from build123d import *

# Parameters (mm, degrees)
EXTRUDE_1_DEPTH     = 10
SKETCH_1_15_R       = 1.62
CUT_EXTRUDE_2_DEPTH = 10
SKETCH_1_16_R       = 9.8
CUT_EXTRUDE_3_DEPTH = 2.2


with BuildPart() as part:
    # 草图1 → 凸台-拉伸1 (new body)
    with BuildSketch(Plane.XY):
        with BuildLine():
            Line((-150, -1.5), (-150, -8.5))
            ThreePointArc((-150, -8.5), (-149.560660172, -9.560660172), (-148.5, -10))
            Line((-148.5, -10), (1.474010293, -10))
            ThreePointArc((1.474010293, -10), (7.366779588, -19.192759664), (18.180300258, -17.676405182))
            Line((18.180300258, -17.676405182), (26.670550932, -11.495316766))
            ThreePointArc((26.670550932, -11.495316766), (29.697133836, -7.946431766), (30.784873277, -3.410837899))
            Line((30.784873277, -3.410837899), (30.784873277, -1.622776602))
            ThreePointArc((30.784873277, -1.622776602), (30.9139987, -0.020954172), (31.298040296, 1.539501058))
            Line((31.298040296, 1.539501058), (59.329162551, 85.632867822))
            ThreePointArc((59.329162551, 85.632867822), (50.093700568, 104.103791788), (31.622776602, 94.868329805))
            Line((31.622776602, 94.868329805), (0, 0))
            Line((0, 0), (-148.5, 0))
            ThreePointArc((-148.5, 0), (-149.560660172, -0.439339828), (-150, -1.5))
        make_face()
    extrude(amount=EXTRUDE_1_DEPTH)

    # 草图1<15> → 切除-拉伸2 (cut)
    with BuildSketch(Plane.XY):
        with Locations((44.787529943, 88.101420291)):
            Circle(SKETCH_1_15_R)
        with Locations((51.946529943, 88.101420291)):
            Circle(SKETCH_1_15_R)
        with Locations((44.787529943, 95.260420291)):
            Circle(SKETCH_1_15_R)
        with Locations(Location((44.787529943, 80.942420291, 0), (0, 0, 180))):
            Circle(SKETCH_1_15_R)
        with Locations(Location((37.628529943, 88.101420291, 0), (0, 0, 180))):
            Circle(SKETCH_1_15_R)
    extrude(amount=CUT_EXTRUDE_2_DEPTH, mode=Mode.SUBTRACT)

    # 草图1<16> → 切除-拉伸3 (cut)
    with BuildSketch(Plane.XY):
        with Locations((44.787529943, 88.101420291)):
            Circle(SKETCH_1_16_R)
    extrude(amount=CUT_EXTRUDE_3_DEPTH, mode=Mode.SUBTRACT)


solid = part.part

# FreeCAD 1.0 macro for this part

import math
import FreeCAD as App
import Part
import Sketcher

doc = App.newDocument("Part")
body = doc.addObject("PartDesign::Body", "Body")

sketch1 = body.newObject("Sketcher::SketchObject", "Sketch")
sketch1.AttachmentSupport = (doc.getObject("XY_Plane"), [""])
sketch1.MapMode = "FlatFace"
sketch1.addGeometry(Part.LineSegment(App.Vector(-150, -1.5, 0), App.Vector(-150, -8.5, 0)), False)
sketch1.addGeometry(Part.ArcOfCircle(Part.Circle(App.Vector(-148.5, -8.5, 0), App.Vector(0, 0, 1), 1.5), math.radians(180), math.radians(270)), False)
sketch1.addGeometry(Part.LineSegment(App.Vector(-148.5, -10, 0), App.Vector(1.47401, -10, 0)), False)
sketch1.addGeometry(Part.ArcOfCircle(Part.Circle(App.Vector(11.590778, -10, 0), App.Vector(0, 0, 1), 10.116768), math.radians(180), math.radians(310.643203)), False)
sketch1.addGeometry(Part.LineSegment(App.Vector(18.1803, -17.676405, 0), App.Vector(26.670551, -11.495317, 0)), False)
sketch1.addGeometry(Part.ArcOfCircle(Part.Circle(App.Vector(20.784873, -3.410838, 0), App.Vector(0, 0, 1), 10), math.radians(-53.944562), math.radians(0)), False)
sketch1.addGeometry(Part.LineSegment(App.Vector(30.784873, -3.410838, 0), App.Vector(30.784873, -1.622777, 0)), False)
sketch1.addGeometry(Part.ArcOfCircle(Part.Circle(App.Vector(40.784873, -1.622777, 0), App.Vector(0, 0, 1), 10), math.radians(161.565051), math.radians(180)), False)
sketch1.addGeometry(Part.LineSegment(App.Vector(31.29804, 1.539501, 0), App.Vector(59.329163, 85.632868, 0)), False)
sketch1.addGeometry(Part.ArcOfCircle(Part.Circle(App.Vector(45.47597, 90.250599, 0), App.Vector(0, 0, 1), 14.602548), math.radians(-18.434949), math.radians(161.565051)), False)
sketch1.addGeometry(Part.LineSegment(App.Vector(31.622777, 94.86833, 0), App.Vector(0, 0, 0)), False)
sketch1.addGeometry(Part.LineSegment(App.Vector(0, 0, 0), App.Vector(-148.5, 0, 0)), False)
sketch1.addGeometry(Part.ArcOfCircle(Part.Circle(App.Vector(-148.5, -1.5, 0), App.Vector(0, 0, 1), 1.5), math.radians(90), math.radians(180)), False)
sketch1.addConstraint(Sketcher.Constraint("Tangent", 0, 2, 1, 1))
sketch1.addConstraint(Sketcher.Constraint("Tangent", 1, 2, 2, 1))
sketch1.addConstraint(Sketcher.Constraint("Coincident", 2, 2, 3, 1))
sketch1.addConstraint(Sketcher.Constraint("Coincident", 3, 2, 4, 1))
sketch1.addConstraint(Sketcher.Constraint("Tangent", 4, 2, 5, 1))
sketch1.addConstraint(Sketcher.Constraint("Tangent", 5, 2, 6, 1))
sketch1.addConstraint(Sketcher.Constraint("Tangent", 6, 2, 7, 2))
sketch1.addConstraint(Sketcher.Constraint("Tangent", 7, 1, 8, 1))
sketch1.addConstraint(Sketcher.Constraint("Tangent", 8, 2, 9, 1))
sketch1.addConstraint(Sketcher.Constraint("Tangent", 9, 2, 10, 1))
sketch1.addConstraint(Sketcher.Constraint("Coincident", 10, 2, 11, 1))
sketch1.addConstraint(Sketcher.Constraint("Tangent", 11, 2, 12, 1))
sketch1.addConstraint(Sketcher.Constraint("Tangent", 12, 2, 0, 1))
sketch1.addConstraint(Sketcher.Constraint("Vertical", 0))
sketch1.addConstraint(Sketcher.Constraint("Horizontal", 2))
sketch1.addConstraint(Sketcher.Constraint("Vertical", 6))
sketch1.addConstraint(Sketcher.Constraint("Horizontal", 11))
sketch1.addConstraint(Sketcher.Constraint("Coincident", 10, 2, -1, 1))
sketch1.addConstraint(Sketcher.Constraint("Equal", 5, 7))
sketch1.addConstraint(Sketcher.Constraint("Equal", 1, 12))
sketch1.addConstraint(Sketcher.Constraint("Parallel", 8, 10))
sketch1.addConstraint(Sketcher.Constraint("Horizontal", 3, 3, 1, 2))
sketch1.addConstraint(Sketcher.Constraint("Radius", 5, 10.0))
sketch1.addConstraint(Sketcher.Constraint("Radius", 1, 1.5))
sketch1.addConstraint(Sketcher.Constraint("DistanceY", 0, 2, 0, 1, 7.0))
sketch1.addConstraint(Sketcher.Constraint("Distance", 10, 100.0))
sketch1.addConstraint(Sketcher.Constraint("DistanceX", 11, 2, 11, 1, 148.5))
sketch1.addConstraint(Sketcher.Constraint("Radius", 3, 10.116768))
sketch1.addConstraint(Sketcher.Constraint("Radius", 9, 14.602548))
sketch1.addConstraint(Sketcher.Constraint("DistanceX", 2, 1, 2, 2, 149.97401))
sketch1.addConstraint(Sketcher.Constraint("DistanceY", 6, 1, 6, 2, 1.788061))
sketch1.addConstraint(Sketcher.Constraint("DistanceY", -1, 1, 9, 3, 90.250599))
sketch1.addConstraint(Sketcher.Constraint("DistanceX", -1, 1, 3, 2, 18.1803))
sketch1.addConstraint(Sketcher.Constraint("DistanceY", -1, 1, 7, 1, 1.539501))
pad1 = body.newObject("PartDesign::Pad", "Pad")
pad1.Profile = sketch1
pad1.Length = 10

sketch2 = body.newObject("Sketcher::SketchObject", "Sketch001")
sketch2.AttachmentSupport = (doc.getObject("XY_Plane"), [""])
sketch2.MapMode = "FlatFace"
sketch2.addGeometry(Part.Circle(App.Vector(44.78753, 88.10142, 0), App.Vector(0, 0, 1), 1.62), False)
sketch2.addGeometry(Part.Circle(App.Vector(51.94653, 88.10142, 0), App.Vector(0, 0, 1), 1.62), False)
sketch2.addGeometry(Part.Circle(App.Vector(44.78753, 95.26042, 0), App.Vector(0, 0, 1), 1.62), False)
sketch2.addGeometry(Part.Circle(App.Vector(44.78753, 80.94242, 0), App.Vector(0, 0, 1), 1.62), False)
sketch2.addGeometry(Part.Circle(App.Vector(37.62853, 88.10142, 0), App.Vector(0, 0, 1), 1.62), False)
sketch2.addConstraint(Sketcher.Constraint("Equal", 0, 1))
sketch2.addConstraint(Sketcher.Constraint("Equal", 1, 2))
sketch2.addConstraint(Sketcher.Constraint("Equal", 2, 3))
sketch2.addConstraint(Sketcher.Constraint("Equal", 3, 4))
sketch2.addConstraint(Sketcher.Constraint("Horizontal", 0, 3, 1, 3))
sketch2.addConstraint(Sketcher.Constraint("Horizontal", 1, 3, 4, 3))
sketch2.addConstraint(Sketcher.Constraint("Vertical", 0, 3, 2, 3))
sketch2.addConstraint(Sketcher.Constraint("Vertical", 2, 3, 3, 3))
sketch2.addConstraint(Sketcher.Constraint("Diameter", 0, 3.24))
sketch2.addConstraint(Sketcher.Constraint("DistanceX", 0, 3, 1, 3, 7.159))
sketch2.addConstraint(Sketcher.Constraint("DistanceY", 0, 3, 2, 3, 7.159))
sketch2.addConstraint(Sketcher.Constraint("DistanceY", 3, 3, 0, 3, 7.159))
sketch2.addConstraint(Sketcher.Constraint("DistanceX", 4, 3, 0, 3, 7.159))
sketch2.addConstraint(Sketcher.Constraint("DistanceX", -1, 1, 0, 3, 44.78753))
sketch2.addConstraint(Sketcher.Constraint("DistanceY", -1, 1, 0, 3, 88.10142))
pocket1 = body.newObject("PartDesign::Pocket", "Pocket")
pocket1.Profile = sketch2
pocket1.Length = 10
pocket1.Reversed = True

sketch3 = body.newObject("Sketcher::SketchObject", "Sketch002")
sketch3.AttachmentSupport = (doc.getObject("XY_Plane"), [""])
sketch3.MapMode = "FlatFace"
sketch3.addGeometry(Part.Circle(App.Vector(44.78753, 88.10142, 0), App.Vector(0, 0, 1), 9.8), False)
sketch3.addConstraint(Sketcher.Constraint("Diameter", 0, 19.6))
sketch3.addConstraint(Sketcher.Constraint("DistanceX", -1, 1, 0, 3, 44.78753))
sketch3.addConstraint(Sketcher.Constraint("DistanceY", -1, 1, 0, 3, 88.10142))
pocket2 = body.newObject("PartDesign::Pocket", "Pocket001")
pocket2.Profile = sketch3
pocket2.Length = 2.2
pocket2.Reversed = True

doc.recompute()
